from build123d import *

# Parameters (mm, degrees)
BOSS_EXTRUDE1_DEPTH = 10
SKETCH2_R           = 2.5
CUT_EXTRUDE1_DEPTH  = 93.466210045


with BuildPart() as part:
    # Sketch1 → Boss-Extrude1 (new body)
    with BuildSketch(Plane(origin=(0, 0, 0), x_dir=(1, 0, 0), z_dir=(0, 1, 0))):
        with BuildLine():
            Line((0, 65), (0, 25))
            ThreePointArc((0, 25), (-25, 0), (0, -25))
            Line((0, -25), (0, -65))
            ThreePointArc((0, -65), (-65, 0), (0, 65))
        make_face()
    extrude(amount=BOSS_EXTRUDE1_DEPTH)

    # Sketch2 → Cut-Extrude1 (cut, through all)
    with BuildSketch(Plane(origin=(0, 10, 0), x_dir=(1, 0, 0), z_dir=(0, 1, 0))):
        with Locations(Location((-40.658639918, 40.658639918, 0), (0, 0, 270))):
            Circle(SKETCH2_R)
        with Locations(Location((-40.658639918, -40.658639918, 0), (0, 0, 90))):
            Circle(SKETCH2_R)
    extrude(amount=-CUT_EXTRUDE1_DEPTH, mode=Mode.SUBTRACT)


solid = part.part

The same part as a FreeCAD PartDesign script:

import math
import FreeCAD as App
import Part
import Sketcher

V = App.Vector
Q = App.Units.Quantity

doc = App.newDocument("Part")
body = doc.addObject("PartDesign::Body", "Body")

sketch1 = doc.addObject("Sketcher::SketchObject", "Sketch")
body.addObject(sketch1)
sketch1.AttachmentSupport = (doc.XZ_Plane, [""])
sketch1.MapMode = "FlatFace"
sketch1.addGeometry(Part.LineSegment(V(0, -25, 0), V(0, -65, 0)), False)
sketch1.addGeometry(Part.ArcOfCircle(Part.Circle(V(0, 0, 0), V(0, 0, 1), 65), math.radians(90), math.radians(270)), False)
sketch1.addGeometry(Part.LineSegment(V(0, 65, 0), V(0, 25, 0)), False)
sketch1.addGeometry(Part.ArcOfCircle(Part.Circle(V(0, 0, 0), V(0, 0, 1), 25), math.radians(90), math.radians(270)), False)
sketch1.addConstraint(Sketcher.Constraint("Coincident", 0, 2, 1, 2))
sketch1.addConstraint(Sketcher.Constraint("Coincident", 1, 1, 2, 1))
sketch1.addConstraint(Sketcher.Constraint("Coincident", 2, 2, 3, 1))
sketch1.addConstraint(Sketcher.Constraint("Coincident", 3, 2, 0, 1))
sketch1.addConstraint(Sketcher.Constraint("Vertical", 0))
sketch1.addConstraint(Sketcher.Constraint("Vertical", 2))
sketch1.addConstraint(Sketcher.Constraint("Coincident", 1, 3, -1, 1))
sketch1.addConstraint(Sketcher.Constraint("Coincident", 3, 3, -1, 1))
sketch1.addConstraint(Sketcher.Constraint("PointOnObject", 0, 2, -2))
sketch1.addConstraint(Sketcher.Constraint("PointOnObject", 1, 1, -2))
sketch1.addConstraint(Sketcher.Constraint("Radius", 1, Q("65 mm")))
sketch1.addConstraint(Sketcher.Constraint("Radius", 3, Q("25 mm")))
pad1 = doc.addObject("PartDesign::Pad", "Pad")
body.addObject(pad1)
pad1.Profile = sketch1
pad1.Length = 10
pad1.Reversed = True

sketch2 = doc.addObject("Sketcher::SketchObject", "Sketch001")
body.addObject(sketch2)
sketch2.AttachmentSupport = (doc.XZ_Plane, [""])
sketch2.MapMode = "FlatFace"
sketch2.AttachmentOffset = App.Placement(V(0, 0, -10), App.Rotation())
sketch2.addGeometry(Part.Circle(V(-40.7, -40.7, 0), V(0, 0, 1), 2.5), False)
sketch2.addGeometry(Part.Circle(V(-40.7, 40.7, 0), V(0, 0, 1), 2.5), False)
sketch2.addConstraint(Sketcher.Constraint("Equal", 0, 1))
sketch2.addConstraint(Sketcher.Constraint("Symmetric", 0, 3, 1, 3, -1))
sketch2.addConstraint(Sketcher.Constraint("Diameter", 0, Q("5 mm")))
sketch2.addConstraint(Sketcher.Constraint("DistanceX", 0, 3, -1, 1, Q("40.65864 mm")))
sketch2.addConstraint(Sketcher.Constraint("DistanceY", 0, 3, -1, 1, Q("40.65864 mm")))
pocket1 = doc.addObject("PartDesign::Pocket", "Pocket")
body.addObject(pocket1)
pocket1.Profile = sketch2
pocket1.Type = "ThroughAll"
pocket1.Reversed = True

doc.recompute()
